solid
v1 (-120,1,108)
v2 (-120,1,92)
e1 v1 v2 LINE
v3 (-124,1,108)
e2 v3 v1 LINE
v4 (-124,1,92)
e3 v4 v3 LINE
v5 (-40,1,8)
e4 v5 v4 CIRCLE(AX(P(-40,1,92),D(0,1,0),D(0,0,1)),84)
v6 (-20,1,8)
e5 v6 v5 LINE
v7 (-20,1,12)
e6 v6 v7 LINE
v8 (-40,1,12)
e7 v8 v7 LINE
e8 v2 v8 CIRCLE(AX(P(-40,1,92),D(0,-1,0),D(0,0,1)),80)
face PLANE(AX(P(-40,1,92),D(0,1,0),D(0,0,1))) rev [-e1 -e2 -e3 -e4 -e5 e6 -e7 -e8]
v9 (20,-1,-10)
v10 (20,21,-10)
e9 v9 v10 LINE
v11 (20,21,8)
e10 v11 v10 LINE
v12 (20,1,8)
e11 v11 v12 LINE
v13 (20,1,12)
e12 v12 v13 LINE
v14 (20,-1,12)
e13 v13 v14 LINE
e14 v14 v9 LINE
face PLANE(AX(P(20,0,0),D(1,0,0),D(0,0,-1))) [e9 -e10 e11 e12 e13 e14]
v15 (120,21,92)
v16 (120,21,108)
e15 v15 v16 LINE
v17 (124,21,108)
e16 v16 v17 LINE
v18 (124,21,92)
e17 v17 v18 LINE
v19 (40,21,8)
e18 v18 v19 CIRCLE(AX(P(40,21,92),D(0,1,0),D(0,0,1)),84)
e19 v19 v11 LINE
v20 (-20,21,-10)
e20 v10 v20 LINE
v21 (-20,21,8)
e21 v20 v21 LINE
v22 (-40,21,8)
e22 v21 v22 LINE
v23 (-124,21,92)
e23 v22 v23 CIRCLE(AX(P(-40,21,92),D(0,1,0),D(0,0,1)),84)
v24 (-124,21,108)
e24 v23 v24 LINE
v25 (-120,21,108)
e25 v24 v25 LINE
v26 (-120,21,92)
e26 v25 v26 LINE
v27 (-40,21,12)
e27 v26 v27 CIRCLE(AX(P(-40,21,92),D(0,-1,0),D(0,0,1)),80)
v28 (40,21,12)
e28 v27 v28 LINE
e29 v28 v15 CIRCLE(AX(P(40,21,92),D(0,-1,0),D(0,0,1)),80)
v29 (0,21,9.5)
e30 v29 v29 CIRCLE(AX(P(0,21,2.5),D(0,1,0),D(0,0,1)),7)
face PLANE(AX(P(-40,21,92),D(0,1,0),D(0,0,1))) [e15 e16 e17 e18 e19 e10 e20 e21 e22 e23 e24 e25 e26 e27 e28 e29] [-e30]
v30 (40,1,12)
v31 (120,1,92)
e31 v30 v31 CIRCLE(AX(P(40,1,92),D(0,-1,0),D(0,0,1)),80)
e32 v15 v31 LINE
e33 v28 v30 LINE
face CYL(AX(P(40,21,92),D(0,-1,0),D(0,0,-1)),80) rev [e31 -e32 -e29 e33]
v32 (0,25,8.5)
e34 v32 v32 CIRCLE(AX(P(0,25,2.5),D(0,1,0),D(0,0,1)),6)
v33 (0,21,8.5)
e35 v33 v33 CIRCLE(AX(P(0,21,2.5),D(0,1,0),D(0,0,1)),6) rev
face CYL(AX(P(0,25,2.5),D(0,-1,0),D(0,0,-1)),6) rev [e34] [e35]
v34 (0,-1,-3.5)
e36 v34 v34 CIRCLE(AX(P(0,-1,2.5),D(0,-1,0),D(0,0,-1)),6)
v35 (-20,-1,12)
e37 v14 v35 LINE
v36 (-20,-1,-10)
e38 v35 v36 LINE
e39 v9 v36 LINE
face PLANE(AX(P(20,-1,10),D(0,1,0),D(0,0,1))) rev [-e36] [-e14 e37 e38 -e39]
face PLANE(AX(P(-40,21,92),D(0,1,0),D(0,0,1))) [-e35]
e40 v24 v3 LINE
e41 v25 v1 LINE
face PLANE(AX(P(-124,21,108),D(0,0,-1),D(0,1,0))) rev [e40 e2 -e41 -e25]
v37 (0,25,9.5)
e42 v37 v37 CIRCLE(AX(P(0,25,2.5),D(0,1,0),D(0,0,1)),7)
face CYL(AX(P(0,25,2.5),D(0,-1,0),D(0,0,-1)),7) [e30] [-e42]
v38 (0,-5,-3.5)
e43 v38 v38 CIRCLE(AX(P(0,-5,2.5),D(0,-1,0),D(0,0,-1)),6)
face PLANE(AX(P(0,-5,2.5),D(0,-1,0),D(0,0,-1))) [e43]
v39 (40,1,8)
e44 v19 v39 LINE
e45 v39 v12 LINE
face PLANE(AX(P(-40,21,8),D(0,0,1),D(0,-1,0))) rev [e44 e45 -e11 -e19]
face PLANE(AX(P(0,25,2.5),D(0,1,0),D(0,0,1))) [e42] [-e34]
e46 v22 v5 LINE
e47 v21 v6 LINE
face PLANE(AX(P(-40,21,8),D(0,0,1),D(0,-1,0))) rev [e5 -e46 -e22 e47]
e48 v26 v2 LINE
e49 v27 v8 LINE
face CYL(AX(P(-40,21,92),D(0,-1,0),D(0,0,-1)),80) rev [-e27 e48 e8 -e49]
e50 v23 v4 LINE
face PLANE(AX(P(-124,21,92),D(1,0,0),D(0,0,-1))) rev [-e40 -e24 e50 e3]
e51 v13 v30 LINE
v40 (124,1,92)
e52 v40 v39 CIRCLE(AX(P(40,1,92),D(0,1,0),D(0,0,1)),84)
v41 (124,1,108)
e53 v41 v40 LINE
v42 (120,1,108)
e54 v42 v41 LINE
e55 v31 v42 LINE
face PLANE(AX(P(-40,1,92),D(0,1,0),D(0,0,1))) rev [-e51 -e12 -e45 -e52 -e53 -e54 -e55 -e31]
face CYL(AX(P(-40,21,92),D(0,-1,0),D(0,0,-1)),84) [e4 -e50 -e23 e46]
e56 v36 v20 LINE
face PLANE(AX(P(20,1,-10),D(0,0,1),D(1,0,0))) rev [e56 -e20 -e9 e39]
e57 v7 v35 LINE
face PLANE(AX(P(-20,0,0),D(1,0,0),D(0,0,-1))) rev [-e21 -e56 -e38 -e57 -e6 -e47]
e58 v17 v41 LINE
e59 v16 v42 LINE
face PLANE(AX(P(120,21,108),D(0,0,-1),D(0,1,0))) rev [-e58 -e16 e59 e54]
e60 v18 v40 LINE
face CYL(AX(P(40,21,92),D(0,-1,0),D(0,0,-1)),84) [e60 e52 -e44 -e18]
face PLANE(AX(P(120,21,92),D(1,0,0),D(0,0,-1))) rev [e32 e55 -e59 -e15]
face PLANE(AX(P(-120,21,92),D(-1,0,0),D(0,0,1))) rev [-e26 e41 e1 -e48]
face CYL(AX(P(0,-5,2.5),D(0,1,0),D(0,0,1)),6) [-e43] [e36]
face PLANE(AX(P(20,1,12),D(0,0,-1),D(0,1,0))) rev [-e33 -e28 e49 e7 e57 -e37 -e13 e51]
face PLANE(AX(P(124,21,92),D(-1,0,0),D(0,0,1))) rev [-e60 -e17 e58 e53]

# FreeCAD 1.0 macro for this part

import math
import FreeCAD as App
import Part
import Sketcher
Q = App.Units.Quantity

doc = App.newDocument("Part")
body = doc.addObject("PartDesign::Body", "Body")

# Sketch on YZ plane
sketch1 = body.newObject("Sketcher::SketchObject", "Sketch")
sketch1.AttachmentSupport = (doc.getObject("YZ_Plane"), [""])
sketch1.MapMode = "FlatFace"
sketch1.addGeometry([
    Part.LineSegment(App.Vector(1, -10, 0), App.Vector(1, 12, 0)),
    Part.LineSegment(App.Vector(1, 12, 0), App.Vector(-1, 12, 0)),
    Part.LineSegment(App.Vector(-1, 12, 0), App.Vector(-1, -10, 0)),
    Part.LineSegment(App.Vector(-1, -10, 0), App.Vector(1, -10, 0)),
], False)
sketch1.addConstraint([
    Sketcher.Constraint("Coincident", 0, 2, 1, 1),
    Sketcher.Constraint("Coincident", 1, 2, 2, 1),
    Sketcher.Constraint("Coincident", 2, 2, 3, 1),
    Sketcher.Constraint("Coincident", 3, 2, 0, 1),
    Sketcher.Constraint("Vertical", 0),
    Sketcher.Constraint("Horizontal", 1),
    Sketcher.Constraint("Vertical", 2),
    Sketcher.Constraint("Horizontal", 3),
    Sketcher.Constraint("DistanceX", 1, 2, 1, 1, Q("2 mm")),
    Sketcher.Constraint("DistanceY", 0, 1, 0, 2, Q("22 mm")),
    Sketcher.Constraint("DistanceX", -1, 1, 0, 2, Q("1 mm")),
    Sketcher.Constraint("DistanceY", -1, 1, 0, 2, Q("12 mm")),
])
pad1 = body.newObject("PartDesign::Pad", "Pad")
pad1.Profile = sketch1
pad1.Length = 40
pad1.Midplane = True

# Sketch on XZ plane
sketch2 = body.newObject("Sketcher::SketchObject", "Sketch001")
sketch2.AttachmentSupport = (doc.getObject("XZ_Plane"), [""])
sketch2.MapMode = "FlatFace"
sketch2.AttachmentOffset = App.Placement(App.Vector(0, 0, -1), App.Rotation())
sketch2.addGeometry([
    Part.LineSegment(App.Vector(40, 8, 0), App.Vector(-40, 8, 0)),  # 0
    Part.ArcOfCircle(Part.Circle(App.Vector(-40, 92, 0), App.Vector(0, 0, 1), 84), math.radians(180), math.radians(270)),  # 1
    Part.LineSegment(App.Vector(-124, 92, 0), App.Vector(-124, 108, 0)),  # 2
    Part.LineSegment(App.Vector(-124, 108, 0), App.Vector(-120, 108, 0)),  # 3
    Part.LineSegment(App.Vector(-120, 108, 0), App.Vector(-120, 92, 0)),  # 4
    Part.ArcOfCircle(Part.Circle(App.Vector(-40, 92, 0), App.Vector(0, 0, 1), 80), math.radians(180), math.radians(270)),  # 5
    Part.LineSegment(App.Vector(-40, 12, 0), App.Vector(40, 12, 0)),  # 6
    Part.ArcOfCircle(Part.Circle(App.Vector(40, 92, 0), App.Vector(0, 0, 1), 80), math.radians(-90), math.radians(0)),  # 7
    Part.LineSegment(App.Vector(120, 92, 0), App.Vector(120, 108, 0)),  # 8
    Part.LineSegment(App.Vector(120, 108, 0), App.Vector(124, 108, 0)),  # 9
    Part.LineSegment(App.Vector(124, 108, 0), App.Vector(124, 92, 0)),  # 10
    Part.ArcOfCircle(Part.Circle(App.Vector(40, 92, 0), App.Vector(0, 0, 1), 84), math.radians(-90), math.radians(0)),  # 11
], False)
sketch2.addConstraint([
    Sketcher.Constraint("Tangent", 0, 2, 1, 2),
    Sketcher.Constraint("Tangent", 1, 1, 2, 1),
    Sketcher.Constraint("Coincident", 2, 2, 3, 1),
    Sketcher.Constraint("Coincident", 3, 2, 4, 1),
    Sketcher.Constraint("Tangent", 4, 2, 5, 1),
    Sketcher.Constraint("Tangent", 5, 2, 6, 1),
    Sketcher.Constraint("Tangent", 6, 2, 7, 1),
    Sketcher.Constraint("Tangent", 7, 2, 8, 1),
    Sketcher.Constraint("Coincident", 8, 2, 9, 1),
    Sketcher.Constraint("Coincident", 9, 2, 10, 1),
    Sketcher.Constraint("Tangent", 10, 2, 11, 2),
    Sketcher.Constraint("Tangent", 11, 1, 0, 1),
    Sketcher.Constraint("Horizontal", 0),
    Sketcher.Constraint("Vertical", 2),
    Sketcher.Constraint("Horizontal", 3),
    Sketcher.Constraint("Vertical", 4),
    Sketcher.Constraint("Horizontal", 6),
    Sketcher.Constraint("Vertical", 8),
    Sketcher.Constraint("Horizontal", 9),
    Sketcher.Constraint("Vertical", 10),
    Sketcher.Constraint("Coincident", 5, 3, 1, 3),
    Sketcher.Constraint("Coincident", 11, 3, 7, 3),
    Sketcher.Constraint("Equal", 5, 7),
    Sketcher.Constraint("Symmetric", 3, 2, 8, 2, -2),
    Sketcher.Constraint("Radius", 1, Q("84 mm")),
    Sketcher.Constraint("Radius", 5, Q("80 mm")),
    Sketcher.Constraint("DistanceX", 0, 2, 0, 1, Q("80 mm")),
    Sketcher.Constraint("DistanceY", 2, 1, 2, 2, Q("16 mm")),
    Sketcher.Constraint("DistanceY", -1, 1, 1, 3, Q("92 mm")),
])
pad2 = body.newObject("PartDesign::Pad", "Pad001")
pad2.Profile = sketch2
pad2.Length = 20
pad2.Reversed = True

# Sketch on XZ plane
sketch3 = body.newObject("Sketcher::SketchObject", "Sketch002")
sketch3.AttachmentSupport = (doc.getObject("XZ_Plane"), [""])
sketch3.MapMode = "FlatFace"
sketch3.AttachmentOffset = App.Placement(App.Vector(0, 0, -1), App.Rotation())
sketch3.addGeometry([
    Part.LineSegment(App.Vector(-20, -10, 0), App.Vector(-20, 8, 0)),
    Part.LineSegment(App.Vector(-20, 8, 0), App.Vector(20, 8, 0)),
    Part.LineSegment(App.Vector(20, 8, 0), App.Vector(20, -10, 0)),
    Part.LineSegment(App.Vector(20, -10, 0), App.Vector(-20, -10, 0)),
], False)
sketch3.addConstraint([
    Sketcher.Constraint("Coincident", 0, 2, 1, 1),
    Sketcher.Constraint("Coincident", 1, 2, 2, 1),
    Sketcher.Constraint("Coincident", 2, 2, 3, 1),
    Sketcher.Constraint("Coincident", 3, 2, 0, 1),
    Sketcher.Constraint("Vertical", 0),
    Sketcher.Constraint("Horizontal", 1),
    Sketcher.Constraint("Vertical", 2),
    Sketcher.Constraint("Horizontal", 3),
    Sketcher.Constraint("DistanceX", 1, 1, 1, 2, Q("40 mm")),
    Sketcher.Constraint("DistanceY", 0, 1, 0, 2, Q("18 mm")),
    Sketcher.Constraint("DistanceX", 0, 2, -1, 1, Q("20 mm")),
    Sketcher.Constraint("DistanceY", -1, 1, 0, 2, Q("8 mm")),
])
pad3 = body.newObject("PartDesign::Pad", "Pad002")
pad3.Profile = sketch3
pad3.Length = 20
pad3.Reversed = True

# Sketch on XZ plane
sketch4 = body.newObject("Sketcher::SketchObject", "Sketch003")
sketch4.AttachmentSupport = (doc.getObject("XZ_Plane"), [""])
sketch4.MapMode = "FlatFace"
sketch4.AttachmentOffset = App.Placement(App.Vector(0, 0, -21), App.Rotation())
sketch4.addGeometry([
    Part.Circle(App.Vector(0, 2.5, 0), App.Vector(0, 0, 1), 7),
    Part.Circle(App.Vector(0, 2.5, 0), App.Vector(0, 0, 1), 6),
], False)
sketch4.addConstraint([
    Sketcher.Constraint("Coincident", 1, 3, 0, 3),
    Sketcher.Constraint("PointOnObject", 0, 3, -2),
    Sketcher.Constraint("Diameter", 0, Q("14 mm")),
    Sketcher.Constraint("Diameter", 1, Q("12 mm")),
    Sketcher.Constraint("DistanceY", -1, 1, 0, 3, Q("2.5 mm")),
])
pad4 = body.newObject("PartDesign::Pad", "Pad003")
pad4.Profile = sketch4
pad4.Length = 4
pad4.Reversed = True

# Sketch on XZ plane
sketch5 = body.newObject("Sketcher::SketchObject", "Sketch004")
sketch5.AttachmentSupport = (doc.getObject("XZ_Plane"), [""])
sketch5.MapMode = "FlatFace"
sketch5.AttachmentOffset = App.Placement(App.Vector(0, 0, 1), App.Rotation())
sketch5.addGeometry(Part.Circle(App.Vector(0, 2.5, 0), App.Vector(0, 0, 1), 6), False)
sketch5.addConstraint([
    Sketcher.Constraint("PointOnObject", 0, 3, -2),
    Sketcher.Constraint("Diameter", 0, Q("12 mm")),
    Sketcher.Constraint("DistanceY", -1, 1, 0, 3, Q("2.5 mm")),
])
pad5 = body.newObject("PartDesign::Pad", "Pad004")
pad5.Profile = sketch5
pad5.Length = 4

doc.recompute()
